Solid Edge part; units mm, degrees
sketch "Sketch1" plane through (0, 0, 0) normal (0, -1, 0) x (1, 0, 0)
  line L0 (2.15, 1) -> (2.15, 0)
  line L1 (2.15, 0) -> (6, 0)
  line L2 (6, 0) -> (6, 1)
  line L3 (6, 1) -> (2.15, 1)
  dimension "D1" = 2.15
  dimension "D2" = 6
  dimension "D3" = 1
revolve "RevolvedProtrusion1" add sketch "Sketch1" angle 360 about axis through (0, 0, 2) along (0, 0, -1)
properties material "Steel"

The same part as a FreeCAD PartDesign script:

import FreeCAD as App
import Part
import Sketcher

V = App.Vector
Q = App.Units.Quantity


def add_polygon(sketch, points):
    """Adds a closed chain of lines whose ends are joined by coincident constraints."""
    first, n = sketch.GeometryCount, len(points)
    for a, b in zip(points, points[1:] + points[:1]):
        sketch.addGeometry(Part.LineSegment(App.Vector(*a, 0), App.Vector(*b, 0)), False)
    for i in range(n):
        sketch.addConstraint(Sketcher.Constraint("Coincident", first + i, 2, first + (i + 1) % n, 1))

doc = App.newDocument("Part")
body = doc.addObject("PartDesign::Body", "Body")

sketch1 = doc.addObject("Sketcher::SketchObject", "Sketch")
body.addObject(sketch1)
sketch1.AttachmentSupport = (doc.XZ_Plane, [""])
sketch1.MapMode = "FlatFace"
add_polygon(sketch1, [(6, 1), (2.15, 1), (2.15, 0), (6, 0)])
sketch1.addConstraint(Sketcher.Constraint("Horizontal", 0))
sketch1.addConstraint(Sketcher.Constraint("Vertical", 1))
sketch1.addConstraint(Sketcher.Constraint("Horizontal", 2))
sketch1.addConstraint(Sketcher.Constraint("Vertical", 3))
sketch1.addConstraint(Sketcher.Constraint("PointOnObject", 1, 2, -1))
sketch1.addConstraint(Sketcher.Constraint("DistanceX", -1, 1, 2, 2, Q("6 mm")))
sketch1.addConstraint(Sketcher.Constraint("DistanceY", 1, 2, 1, 1, Q("1 mm")))
sketch1.addConstraint(Sketcher.Constraint("DistanceX", 0, 2, 0, 1, Q("3.85 mm")))
revolution = doc.addObject("PartDesign::Revolution", "Revolution")
body.addObject(revolution)
revolution.Profile = sketch1
revolution.ReferenceAxis = (sketch1, ["V_Axis"])
revolution.Angle = 360

doc.recompute()
